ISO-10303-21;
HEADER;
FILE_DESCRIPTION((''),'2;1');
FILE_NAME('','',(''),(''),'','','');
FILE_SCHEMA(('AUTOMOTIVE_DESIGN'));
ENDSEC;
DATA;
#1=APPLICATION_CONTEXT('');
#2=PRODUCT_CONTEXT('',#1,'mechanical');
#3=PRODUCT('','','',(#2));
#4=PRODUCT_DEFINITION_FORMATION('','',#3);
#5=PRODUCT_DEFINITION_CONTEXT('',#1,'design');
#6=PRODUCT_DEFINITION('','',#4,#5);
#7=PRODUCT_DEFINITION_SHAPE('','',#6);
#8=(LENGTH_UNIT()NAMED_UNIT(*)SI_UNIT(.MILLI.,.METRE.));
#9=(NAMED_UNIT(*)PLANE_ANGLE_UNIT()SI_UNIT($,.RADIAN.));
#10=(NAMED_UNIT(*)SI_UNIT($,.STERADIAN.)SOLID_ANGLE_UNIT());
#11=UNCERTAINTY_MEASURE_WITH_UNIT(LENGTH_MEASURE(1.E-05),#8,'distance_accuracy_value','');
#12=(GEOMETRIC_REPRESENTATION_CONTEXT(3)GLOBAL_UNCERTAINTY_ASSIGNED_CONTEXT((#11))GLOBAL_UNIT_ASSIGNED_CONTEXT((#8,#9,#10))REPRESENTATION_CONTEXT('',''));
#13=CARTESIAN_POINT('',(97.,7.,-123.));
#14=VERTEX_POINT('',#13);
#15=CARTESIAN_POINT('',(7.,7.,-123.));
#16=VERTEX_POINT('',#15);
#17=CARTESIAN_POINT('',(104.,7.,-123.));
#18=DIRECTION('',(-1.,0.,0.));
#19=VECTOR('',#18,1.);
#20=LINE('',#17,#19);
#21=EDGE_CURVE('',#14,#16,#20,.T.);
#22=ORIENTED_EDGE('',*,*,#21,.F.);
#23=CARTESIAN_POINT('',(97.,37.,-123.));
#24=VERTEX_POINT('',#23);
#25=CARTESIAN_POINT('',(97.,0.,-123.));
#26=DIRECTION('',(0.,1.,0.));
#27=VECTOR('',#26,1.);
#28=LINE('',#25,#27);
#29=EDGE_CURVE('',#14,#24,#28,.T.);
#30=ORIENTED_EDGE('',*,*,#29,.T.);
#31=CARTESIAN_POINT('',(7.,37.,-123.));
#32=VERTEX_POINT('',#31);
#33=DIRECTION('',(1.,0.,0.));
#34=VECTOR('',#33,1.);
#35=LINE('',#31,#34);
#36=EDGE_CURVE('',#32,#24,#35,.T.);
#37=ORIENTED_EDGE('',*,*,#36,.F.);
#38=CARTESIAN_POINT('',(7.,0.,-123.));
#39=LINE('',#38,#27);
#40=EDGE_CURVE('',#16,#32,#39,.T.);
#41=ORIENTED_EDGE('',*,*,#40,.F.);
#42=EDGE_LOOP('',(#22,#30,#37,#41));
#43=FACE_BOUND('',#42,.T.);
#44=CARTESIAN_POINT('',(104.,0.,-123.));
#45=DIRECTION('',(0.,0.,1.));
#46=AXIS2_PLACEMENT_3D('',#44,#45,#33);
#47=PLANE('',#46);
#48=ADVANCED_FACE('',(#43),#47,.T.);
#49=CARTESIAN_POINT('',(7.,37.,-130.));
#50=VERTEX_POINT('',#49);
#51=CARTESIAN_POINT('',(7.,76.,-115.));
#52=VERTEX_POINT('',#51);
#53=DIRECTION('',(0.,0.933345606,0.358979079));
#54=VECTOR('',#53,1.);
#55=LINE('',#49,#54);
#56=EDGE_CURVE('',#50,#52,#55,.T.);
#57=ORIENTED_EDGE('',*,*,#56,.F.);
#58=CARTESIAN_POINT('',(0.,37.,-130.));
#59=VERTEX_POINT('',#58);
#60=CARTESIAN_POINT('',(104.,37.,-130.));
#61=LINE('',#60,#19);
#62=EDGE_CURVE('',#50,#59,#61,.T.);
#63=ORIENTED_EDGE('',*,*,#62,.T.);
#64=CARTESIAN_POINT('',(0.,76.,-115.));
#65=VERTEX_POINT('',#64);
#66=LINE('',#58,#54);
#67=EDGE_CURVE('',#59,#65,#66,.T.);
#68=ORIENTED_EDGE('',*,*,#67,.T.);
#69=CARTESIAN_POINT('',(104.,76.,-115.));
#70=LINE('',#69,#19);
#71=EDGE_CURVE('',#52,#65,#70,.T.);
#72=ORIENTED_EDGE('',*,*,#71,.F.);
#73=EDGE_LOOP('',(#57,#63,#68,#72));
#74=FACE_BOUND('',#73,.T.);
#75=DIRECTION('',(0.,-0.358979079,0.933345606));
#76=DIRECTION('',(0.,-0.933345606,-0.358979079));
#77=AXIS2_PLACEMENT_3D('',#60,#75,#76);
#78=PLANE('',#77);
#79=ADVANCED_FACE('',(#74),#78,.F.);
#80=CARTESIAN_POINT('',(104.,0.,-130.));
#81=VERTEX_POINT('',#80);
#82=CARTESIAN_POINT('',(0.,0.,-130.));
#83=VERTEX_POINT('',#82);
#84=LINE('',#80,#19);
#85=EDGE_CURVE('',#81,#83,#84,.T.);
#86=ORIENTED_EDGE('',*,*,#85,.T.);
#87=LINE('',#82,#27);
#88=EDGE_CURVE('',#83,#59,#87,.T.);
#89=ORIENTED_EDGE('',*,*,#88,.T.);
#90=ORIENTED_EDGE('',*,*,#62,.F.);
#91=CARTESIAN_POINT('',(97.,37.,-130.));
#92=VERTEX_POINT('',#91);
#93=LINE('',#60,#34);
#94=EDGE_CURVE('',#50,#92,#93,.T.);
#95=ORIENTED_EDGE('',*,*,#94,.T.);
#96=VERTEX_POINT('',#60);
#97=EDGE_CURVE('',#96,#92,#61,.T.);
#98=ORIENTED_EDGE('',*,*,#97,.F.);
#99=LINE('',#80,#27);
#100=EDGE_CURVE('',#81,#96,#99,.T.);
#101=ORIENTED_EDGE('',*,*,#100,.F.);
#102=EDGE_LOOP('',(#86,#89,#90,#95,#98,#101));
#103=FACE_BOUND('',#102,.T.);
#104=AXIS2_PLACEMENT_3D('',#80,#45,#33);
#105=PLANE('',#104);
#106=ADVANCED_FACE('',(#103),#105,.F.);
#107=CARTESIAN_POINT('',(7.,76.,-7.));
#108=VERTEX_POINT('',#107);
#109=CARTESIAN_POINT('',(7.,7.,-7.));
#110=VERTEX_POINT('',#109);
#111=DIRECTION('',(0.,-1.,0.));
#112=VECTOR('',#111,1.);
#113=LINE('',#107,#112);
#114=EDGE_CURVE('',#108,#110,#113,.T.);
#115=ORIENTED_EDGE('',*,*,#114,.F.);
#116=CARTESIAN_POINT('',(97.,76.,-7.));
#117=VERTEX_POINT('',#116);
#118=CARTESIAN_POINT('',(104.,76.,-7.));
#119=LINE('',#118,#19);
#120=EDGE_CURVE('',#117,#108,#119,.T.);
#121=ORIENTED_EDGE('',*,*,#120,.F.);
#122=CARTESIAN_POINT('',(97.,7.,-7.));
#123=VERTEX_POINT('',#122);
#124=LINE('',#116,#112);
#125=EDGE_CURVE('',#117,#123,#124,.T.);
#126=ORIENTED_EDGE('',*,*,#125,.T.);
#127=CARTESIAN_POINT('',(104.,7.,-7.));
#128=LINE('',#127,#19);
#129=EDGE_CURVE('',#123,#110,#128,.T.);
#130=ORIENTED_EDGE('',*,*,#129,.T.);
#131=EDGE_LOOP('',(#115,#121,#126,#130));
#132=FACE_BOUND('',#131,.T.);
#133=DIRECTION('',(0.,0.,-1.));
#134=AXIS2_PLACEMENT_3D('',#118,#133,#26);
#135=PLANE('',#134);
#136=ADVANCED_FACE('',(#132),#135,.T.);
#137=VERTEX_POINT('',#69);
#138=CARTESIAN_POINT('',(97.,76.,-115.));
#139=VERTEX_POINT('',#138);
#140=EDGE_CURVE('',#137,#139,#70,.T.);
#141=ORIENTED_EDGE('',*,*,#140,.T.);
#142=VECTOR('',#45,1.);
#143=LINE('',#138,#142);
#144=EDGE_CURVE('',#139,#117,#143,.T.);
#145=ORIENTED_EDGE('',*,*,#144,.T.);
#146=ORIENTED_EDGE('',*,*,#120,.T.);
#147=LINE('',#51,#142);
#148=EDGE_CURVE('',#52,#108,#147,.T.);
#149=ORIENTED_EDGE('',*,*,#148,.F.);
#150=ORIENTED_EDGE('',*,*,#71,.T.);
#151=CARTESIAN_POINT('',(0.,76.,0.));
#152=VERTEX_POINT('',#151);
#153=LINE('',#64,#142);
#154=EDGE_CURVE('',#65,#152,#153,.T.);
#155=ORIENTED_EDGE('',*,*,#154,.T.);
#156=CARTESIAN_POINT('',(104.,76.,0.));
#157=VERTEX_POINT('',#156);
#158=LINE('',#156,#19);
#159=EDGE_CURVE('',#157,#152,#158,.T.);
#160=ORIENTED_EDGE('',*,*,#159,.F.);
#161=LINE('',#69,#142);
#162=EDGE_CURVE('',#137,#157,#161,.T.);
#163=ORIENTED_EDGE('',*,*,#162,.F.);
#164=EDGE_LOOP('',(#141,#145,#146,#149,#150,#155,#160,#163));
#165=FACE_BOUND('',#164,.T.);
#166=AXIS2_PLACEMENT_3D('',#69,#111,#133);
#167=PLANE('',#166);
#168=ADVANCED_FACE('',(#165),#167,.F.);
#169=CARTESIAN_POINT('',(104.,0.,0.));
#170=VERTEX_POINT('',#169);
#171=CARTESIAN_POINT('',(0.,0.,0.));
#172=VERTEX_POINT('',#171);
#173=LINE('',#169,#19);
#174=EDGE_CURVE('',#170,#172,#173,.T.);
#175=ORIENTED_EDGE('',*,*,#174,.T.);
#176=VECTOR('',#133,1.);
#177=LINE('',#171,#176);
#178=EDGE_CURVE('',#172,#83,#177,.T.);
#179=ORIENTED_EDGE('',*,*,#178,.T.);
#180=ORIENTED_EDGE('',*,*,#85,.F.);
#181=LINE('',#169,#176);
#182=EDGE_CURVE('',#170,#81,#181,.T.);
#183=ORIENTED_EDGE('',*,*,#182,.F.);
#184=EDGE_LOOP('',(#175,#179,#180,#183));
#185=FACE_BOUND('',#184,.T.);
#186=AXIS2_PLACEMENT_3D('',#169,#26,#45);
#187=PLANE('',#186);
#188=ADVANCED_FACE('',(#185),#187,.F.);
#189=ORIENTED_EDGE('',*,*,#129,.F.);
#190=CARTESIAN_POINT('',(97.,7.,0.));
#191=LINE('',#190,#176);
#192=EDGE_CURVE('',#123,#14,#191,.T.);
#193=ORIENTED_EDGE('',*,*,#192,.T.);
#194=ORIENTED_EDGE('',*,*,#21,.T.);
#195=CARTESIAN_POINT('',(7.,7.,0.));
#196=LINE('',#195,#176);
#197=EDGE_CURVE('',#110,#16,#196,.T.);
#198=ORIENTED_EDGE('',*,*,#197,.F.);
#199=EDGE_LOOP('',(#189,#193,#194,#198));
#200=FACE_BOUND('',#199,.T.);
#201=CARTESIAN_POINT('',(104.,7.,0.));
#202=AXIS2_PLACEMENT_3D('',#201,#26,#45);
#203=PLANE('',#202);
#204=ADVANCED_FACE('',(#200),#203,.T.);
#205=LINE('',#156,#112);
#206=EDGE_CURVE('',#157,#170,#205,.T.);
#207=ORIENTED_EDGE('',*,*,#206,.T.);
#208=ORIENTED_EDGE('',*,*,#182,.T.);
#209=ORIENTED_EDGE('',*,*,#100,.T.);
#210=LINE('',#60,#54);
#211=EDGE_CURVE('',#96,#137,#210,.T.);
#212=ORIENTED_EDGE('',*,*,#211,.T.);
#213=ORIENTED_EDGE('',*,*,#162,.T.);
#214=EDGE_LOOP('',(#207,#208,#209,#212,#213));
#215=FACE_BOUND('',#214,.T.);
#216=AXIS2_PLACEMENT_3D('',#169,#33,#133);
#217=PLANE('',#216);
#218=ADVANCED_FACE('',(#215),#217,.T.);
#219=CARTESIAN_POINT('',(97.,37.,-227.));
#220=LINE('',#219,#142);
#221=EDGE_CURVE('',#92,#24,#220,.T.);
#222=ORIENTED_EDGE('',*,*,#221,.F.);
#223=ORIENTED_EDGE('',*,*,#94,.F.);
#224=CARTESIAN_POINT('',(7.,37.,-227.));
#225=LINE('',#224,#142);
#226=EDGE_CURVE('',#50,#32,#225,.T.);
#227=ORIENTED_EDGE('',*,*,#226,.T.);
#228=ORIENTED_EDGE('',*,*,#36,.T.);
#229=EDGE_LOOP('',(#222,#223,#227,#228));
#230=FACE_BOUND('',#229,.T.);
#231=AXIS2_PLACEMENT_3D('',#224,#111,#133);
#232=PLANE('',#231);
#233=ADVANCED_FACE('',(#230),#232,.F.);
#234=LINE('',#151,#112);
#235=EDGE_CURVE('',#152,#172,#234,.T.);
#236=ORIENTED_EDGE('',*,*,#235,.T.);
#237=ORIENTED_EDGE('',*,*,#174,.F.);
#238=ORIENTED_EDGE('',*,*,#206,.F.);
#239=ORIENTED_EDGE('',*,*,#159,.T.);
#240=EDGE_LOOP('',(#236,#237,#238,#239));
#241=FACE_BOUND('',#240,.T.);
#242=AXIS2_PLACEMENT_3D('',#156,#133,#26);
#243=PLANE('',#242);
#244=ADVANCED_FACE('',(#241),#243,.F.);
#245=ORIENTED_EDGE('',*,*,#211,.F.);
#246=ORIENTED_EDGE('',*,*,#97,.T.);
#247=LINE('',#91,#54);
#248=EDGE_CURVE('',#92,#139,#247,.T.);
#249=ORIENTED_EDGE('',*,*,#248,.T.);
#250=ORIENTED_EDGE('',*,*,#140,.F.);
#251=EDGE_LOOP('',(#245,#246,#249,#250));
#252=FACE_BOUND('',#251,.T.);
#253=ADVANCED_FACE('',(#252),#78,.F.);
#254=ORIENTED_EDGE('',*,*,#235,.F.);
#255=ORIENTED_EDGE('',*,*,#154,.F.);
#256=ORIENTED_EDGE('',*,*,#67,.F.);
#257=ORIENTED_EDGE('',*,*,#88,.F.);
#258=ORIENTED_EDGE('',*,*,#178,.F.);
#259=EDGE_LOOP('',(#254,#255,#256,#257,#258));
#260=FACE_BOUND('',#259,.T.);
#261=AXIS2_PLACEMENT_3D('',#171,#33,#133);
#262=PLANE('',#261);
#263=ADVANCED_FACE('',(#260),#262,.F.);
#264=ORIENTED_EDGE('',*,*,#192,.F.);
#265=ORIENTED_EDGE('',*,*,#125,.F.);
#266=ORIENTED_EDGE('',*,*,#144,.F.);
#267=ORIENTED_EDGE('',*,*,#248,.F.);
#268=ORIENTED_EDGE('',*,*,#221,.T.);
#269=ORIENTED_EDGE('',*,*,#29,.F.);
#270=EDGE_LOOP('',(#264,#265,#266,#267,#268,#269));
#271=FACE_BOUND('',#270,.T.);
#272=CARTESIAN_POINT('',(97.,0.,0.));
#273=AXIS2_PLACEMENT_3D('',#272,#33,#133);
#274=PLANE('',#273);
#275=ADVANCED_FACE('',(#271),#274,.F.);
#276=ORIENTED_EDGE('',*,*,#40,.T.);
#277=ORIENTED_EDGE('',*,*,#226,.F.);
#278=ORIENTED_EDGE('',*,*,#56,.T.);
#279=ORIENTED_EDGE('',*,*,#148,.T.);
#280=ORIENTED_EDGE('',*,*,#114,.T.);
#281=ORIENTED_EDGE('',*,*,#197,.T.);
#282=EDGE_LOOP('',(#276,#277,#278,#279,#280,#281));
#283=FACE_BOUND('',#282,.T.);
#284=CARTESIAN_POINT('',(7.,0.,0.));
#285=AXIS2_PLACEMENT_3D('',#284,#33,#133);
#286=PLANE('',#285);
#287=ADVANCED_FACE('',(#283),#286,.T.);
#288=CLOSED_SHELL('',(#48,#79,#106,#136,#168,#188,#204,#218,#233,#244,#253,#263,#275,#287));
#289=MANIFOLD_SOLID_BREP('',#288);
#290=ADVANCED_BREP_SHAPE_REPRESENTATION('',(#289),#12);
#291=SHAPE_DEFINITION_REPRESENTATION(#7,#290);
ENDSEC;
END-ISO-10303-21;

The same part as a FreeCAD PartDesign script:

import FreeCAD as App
import Part
import Sketcher
from FreeCAD import Vector
Q = App.Units.Quantity


def faces_at(feature, points):
    """Names of the faces that lie closest to the given points."""
    faces = feature.Shape.Faces
    near = lambda p: min(range(len(faces)), key=lambda i: faces[i].distToShape(Part.Vertex(*p))[0])
    return sorted({f"Face{near(p) + 1}" for p in points})


def add_polygon(sketch, points):
    """Adds a closed chain of lines whose ends are joined by coincident constraints."""
    first, n = sketch.GeometryCount, len(points)
    for a, b in zip(points, points[1:] + points[:1]):
        sketch.addGeometry(Part.LineSegment(App.Vector(*a, 0), App.Vector(*b, 0)), False)
    for i in range(n):
        sketch.addConstraint(Sketcher.Constraint("Coincident", first + i, 2, first + (i + 1) % n, 1))

doc = App.newDocument("Part")
params = doc.addObject("Spreadsheet::Sheet", "Params")
for row, (alias, value) in enumerate([
    ("sketch1_width", "37 mm"),
    ("sketch1_width2", "76 mm"),
    ("sketch1_height", "130 mm"),
    ("sketch1_height2", "115 mm"),
    ("pad1_length", "104 mm"),
    ("thickness_wall", "7 mm"),
    ("sketch2_width", "90 mm"),
    ("sketch2_height", "18.2 mm"),
    ("pocket1_length", "104 mm"),
], start=1):
    params.set(f"A{row}", alias)
    params.set(f"B{row}", "=" + value)
    params.setAlias(f"B{row}", alias)

body = doc.addObject("PartDesign::Body", "Body")

# Sketch on YZ plane
sketch1 = body.newObject("Sketcher::SketchObject", "Sketch")
sketch1.AttachmentSupport = (doc.getObject("YZ_Plane"), [""])
sketch1.MapMode = "FlatFace"
add_polygon(sketch1, [(0, 0), (0, -130), (37, -130), (76, -115), (76, 0)])  # lines 0-4
sketch1.addConstraint([
    Sketcher.Constraint("Vertical", 0),
    Sketcher.Constraint("Horizontal", 1),
    Sketcher.Constraint("Vertical", 3),
    Sketcher.Constraint("Horizontal", 4),
    Sketcher.Constraint("Coincident", 4, 2, -1, 1),
    Sketcher.Constraint("DistanceX", 1, 1, 1, 2, Q("37 mm")),
    Sketcher.Constraint("DistanceX", 4, 2, 4, 1, Q("76 mm")),
    Sketcher.Constraint("DistanceY", 0, 2, 0, 1, Q("130 mm")),
    Sketcher.Constraint("DistanceY", 3, 1, 3, 2, Q("115 mm")),
])
sketch1.setExpression("Constraints[10]", "Params.sketch1_width")
sketch1.setExpression("Constraints[11]", "Params.sketch1_width2")
sketch1.setExpression("Constraints[12]", "Params.sketch1_height")
sketch1.setExpression("Constraints[13]", "Params.sketch1_height2")
pad1 = body.newObject("PartDesign::Pad", "Pad")
pad1.Profile = sketch1
pad1.setExpression("Length", "Params.pad1_length")
doc.recompute()

thickness = body.newObject("PartDesign::Thickness", "Thickness")
thickness.Base = (pad1, faces_at(pad1, [(52, 76, -57.5), (52, 56.5, -122.5)]))
thickness.setExpression("Value", "Params.thickness_wall")
thickness.Reversed = True
thickness.Join = "Intersection"

# Sketch on XY plane
sketch2 = body.newObject("Sketcher::SketchObject", "Sketch001")
sketch2.AttachmentSupport = (doc.getObject("XY_Plane"), [""])
sketch2.MapMode = "FlatFace"
sketch2.AttachmentOffset = App.Placement(Vector(0, 0, -123), App.Rotation())
add_polygon(sketch2, [(7, 55.2), (7, 37), (97, 37), (97, 55.2)])  # lines 0-3
sketch2.addConstraint([
    Sketcher.Constraint("Vertical", 0),
    Sketcher.Constraint("Horizontal", 1),
    Sketcher.Constraint("Vertical", 2),
    Sketcher.Constraint("Horizontal", 3),
    Sketcher.Constraint("DistanceX", 1, 1, 1, 2, Q("90 mm")),
    Sketcher.Constraint("DistanceY", 0, 2, 0, 1, Q("18.2 mm")),
    Sketcher.Constraint("DistanceX", -1, 1, 0, 2, Q("7 mm")),
    Sketcher.Constraint("DistanceY", -1, 1, 0, 2, Q("37 mm")),
])
sketch2.setExpression("Constraints[8]", "Params.sketch2_width")
sketch2.setExpression("Constraints[9]", "Params.sketch2_height")
pocket1 = body.newObject("PartDesign::Pocket", "Pocket")
pocket1.Profile = sketch2
pocket1.setExpression("Length", "Params.pocket1_length")

doc.recompute()
